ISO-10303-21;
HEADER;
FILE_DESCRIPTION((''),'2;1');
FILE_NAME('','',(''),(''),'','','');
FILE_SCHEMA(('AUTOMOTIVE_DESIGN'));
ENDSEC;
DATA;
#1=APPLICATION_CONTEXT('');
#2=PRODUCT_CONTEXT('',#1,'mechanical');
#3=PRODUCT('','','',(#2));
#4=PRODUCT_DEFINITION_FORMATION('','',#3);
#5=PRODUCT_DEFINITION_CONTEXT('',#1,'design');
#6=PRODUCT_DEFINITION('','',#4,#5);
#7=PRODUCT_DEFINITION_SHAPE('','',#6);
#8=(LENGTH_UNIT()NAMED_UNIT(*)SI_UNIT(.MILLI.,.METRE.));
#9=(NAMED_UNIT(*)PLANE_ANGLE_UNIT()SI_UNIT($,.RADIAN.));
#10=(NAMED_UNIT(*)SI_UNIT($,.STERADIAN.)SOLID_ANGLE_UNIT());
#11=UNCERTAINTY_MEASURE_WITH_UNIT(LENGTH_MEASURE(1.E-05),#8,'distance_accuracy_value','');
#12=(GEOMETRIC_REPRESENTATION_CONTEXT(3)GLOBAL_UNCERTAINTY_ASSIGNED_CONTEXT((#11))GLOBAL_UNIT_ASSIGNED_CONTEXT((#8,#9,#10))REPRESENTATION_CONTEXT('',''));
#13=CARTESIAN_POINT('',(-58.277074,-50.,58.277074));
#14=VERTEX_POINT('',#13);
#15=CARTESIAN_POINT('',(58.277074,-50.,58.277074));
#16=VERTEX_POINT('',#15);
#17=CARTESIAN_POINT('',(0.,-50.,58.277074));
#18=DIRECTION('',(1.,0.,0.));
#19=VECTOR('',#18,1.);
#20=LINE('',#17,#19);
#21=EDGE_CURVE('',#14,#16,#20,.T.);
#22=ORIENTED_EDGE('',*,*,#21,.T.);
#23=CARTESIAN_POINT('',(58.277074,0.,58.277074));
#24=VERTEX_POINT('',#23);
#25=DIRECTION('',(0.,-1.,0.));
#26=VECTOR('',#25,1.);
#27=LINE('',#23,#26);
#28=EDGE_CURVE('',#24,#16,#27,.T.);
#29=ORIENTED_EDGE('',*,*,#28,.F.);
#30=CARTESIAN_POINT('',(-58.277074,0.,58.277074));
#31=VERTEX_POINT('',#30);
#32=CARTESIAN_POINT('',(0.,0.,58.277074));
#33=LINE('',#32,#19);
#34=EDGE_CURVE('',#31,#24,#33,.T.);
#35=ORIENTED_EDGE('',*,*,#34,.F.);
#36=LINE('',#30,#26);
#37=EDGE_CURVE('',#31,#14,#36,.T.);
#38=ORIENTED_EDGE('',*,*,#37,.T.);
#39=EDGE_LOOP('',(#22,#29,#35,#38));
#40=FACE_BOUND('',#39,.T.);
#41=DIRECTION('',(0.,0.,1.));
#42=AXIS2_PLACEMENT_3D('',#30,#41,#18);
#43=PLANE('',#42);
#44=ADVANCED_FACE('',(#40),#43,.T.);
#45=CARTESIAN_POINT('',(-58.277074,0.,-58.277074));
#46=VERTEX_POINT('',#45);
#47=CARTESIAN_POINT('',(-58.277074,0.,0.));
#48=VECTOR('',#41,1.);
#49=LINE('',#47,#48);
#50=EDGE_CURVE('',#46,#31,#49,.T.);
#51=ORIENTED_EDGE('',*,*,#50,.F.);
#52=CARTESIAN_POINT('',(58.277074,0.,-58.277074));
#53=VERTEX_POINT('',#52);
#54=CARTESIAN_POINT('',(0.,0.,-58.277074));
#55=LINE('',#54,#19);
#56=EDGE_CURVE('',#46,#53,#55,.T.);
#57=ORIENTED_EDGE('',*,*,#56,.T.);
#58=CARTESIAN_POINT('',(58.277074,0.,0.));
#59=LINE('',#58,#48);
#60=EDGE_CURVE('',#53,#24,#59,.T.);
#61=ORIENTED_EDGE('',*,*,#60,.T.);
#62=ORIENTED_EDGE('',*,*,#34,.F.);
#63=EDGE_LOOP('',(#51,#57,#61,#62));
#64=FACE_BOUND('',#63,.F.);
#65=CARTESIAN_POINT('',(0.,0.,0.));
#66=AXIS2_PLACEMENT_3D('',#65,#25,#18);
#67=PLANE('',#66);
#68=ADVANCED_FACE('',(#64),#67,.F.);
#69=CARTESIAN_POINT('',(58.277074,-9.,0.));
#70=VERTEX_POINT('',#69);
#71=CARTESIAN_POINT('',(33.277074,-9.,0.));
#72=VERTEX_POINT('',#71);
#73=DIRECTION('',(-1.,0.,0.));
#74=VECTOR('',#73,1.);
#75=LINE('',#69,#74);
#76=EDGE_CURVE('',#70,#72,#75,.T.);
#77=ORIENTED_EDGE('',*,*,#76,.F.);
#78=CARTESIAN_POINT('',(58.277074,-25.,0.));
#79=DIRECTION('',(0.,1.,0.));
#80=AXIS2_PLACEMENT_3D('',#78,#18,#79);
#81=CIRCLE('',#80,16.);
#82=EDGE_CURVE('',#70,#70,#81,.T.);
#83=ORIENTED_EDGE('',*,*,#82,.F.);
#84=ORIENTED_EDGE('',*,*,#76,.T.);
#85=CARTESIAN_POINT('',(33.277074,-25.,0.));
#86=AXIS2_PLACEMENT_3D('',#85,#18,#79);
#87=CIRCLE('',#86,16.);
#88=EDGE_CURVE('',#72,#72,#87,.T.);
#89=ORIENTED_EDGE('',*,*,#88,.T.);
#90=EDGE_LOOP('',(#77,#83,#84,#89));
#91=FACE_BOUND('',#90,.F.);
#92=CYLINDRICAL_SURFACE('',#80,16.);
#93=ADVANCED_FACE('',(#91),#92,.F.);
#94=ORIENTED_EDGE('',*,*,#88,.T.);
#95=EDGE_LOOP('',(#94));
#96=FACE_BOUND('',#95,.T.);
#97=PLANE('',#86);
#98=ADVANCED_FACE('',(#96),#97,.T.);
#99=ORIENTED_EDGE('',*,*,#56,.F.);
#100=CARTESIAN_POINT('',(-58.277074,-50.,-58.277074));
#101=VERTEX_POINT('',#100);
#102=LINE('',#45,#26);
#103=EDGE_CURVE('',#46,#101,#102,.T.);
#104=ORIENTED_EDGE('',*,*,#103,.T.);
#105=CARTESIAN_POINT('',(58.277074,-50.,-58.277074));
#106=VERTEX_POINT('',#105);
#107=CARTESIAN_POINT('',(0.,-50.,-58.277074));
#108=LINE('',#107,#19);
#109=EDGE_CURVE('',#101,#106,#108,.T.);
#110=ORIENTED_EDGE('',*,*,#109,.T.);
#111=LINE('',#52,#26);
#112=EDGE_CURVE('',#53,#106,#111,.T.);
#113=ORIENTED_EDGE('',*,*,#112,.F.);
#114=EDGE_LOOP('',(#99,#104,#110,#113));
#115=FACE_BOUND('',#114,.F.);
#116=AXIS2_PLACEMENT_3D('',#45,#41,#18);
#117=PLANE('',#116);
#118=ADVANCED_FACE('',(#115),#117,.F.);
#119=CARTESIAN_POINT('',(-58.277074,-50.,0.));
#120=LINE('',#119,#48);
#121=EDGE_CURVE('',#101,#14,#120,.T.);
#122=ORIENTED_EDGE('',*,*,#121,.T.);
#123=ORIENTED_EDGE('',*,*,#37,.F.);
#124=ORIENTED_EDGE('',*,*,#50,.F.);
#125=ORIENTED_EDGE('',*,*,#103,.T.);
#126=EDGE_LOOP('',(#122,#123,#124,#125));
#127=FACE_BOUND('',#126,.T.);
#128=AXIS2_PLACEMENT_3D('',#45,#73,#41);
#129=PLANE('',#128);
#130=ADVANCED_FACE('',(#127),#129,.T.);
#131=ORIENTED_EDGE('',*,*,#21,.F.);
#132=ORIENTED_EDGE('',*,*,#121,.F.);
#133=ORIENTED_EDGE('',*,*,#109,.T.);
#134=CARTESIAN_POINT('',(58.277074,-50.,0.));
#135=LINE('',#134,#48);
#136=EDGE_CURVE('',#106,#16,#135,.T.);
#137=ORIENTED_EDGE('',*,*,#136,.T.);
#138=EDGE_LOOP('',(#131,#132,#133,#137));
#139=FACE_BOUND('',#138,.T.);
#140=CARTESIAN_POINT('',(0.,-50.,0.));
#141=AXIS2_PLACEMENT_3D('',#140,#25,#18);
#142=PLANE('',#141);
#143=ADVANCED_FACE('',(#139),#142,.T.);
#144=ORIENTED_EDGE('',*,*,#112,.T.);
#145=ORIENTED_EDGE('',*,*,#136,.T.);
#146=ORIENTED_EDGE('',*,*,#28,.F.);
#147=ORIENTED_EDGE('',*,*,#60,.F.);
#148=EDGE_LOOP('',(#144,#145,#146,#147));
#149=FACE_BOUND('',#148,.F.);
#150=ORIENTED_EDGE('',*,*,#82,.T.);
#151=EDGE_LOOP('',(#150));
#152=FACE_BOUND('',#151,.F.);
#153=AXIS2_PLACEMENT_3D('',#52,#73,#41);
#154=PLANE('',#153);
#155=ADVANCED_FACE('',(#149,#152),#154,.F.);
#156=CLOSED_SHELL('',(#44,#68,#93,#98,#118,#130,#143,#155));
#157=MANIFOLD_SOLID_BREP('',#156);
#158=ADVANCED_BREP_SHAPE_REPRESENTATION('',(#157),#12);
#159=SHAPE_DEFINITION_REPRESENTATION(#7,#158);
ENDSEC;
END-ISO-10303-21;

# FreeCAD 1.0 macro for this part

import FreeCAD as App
import Part
import Sketcher

doc = App.newDocument("Part")
params = doc.addObject("Spreadsheet::Sheet", "Params")
for row, (alias, value) in enumerate([
    ("pad1_length", "50 mm"),
    ("sketch2_diameter", "32 mm"),
    ("pocket1_length", "25 mm"),
], start=1):
    params.set(f"A{row}", alias)
    params.set(f"B{row}", "=" + value)
    params.setAlias(f"B{row}", alias)

body = doc.addObject("PartDesign::Body", "Body")

sketch1 = body.newObject("Sketcher::SketchObject", "Sketch")
sketch1.AttachmentSupport = (doc.getObject("XZ_Plane"), [""])
sketch1.MapMode = "FlatFace"
sketch1.addGeometry([
    Part.LineSegment(App.Vector(-58, 58, 0), App.Vector(-58, -58, 0)),
    Part.LineSegment(App.Vector(-58, -58, 0), App.Vector(58, -58, 0)),
    Part.LineSegment(App.Vector(58, -58, 0), App.Vector(58, 58, 0)),
    Part.LineSegment(App.Vector(58, 58, 0), App.Vector(-58, 58, 0)),
], False)
sketch1.addConstraint([
    Sketcher.Constraint("Coincident", 0, 2, 1, 1),
    Sketcher.Constraint("Coincident", 1, 2, 2, 1),
    Sketcher.Constraint("Coincident", 2, 2, 3, 1),
    Sketcher.Constraint("Coincident", 3, 2, 0, 1),
    Sketcher.Constraint("Vertical", 0),
    Sketcher.Constraint("Horizontal", 1),
    Sketcher.Constraint("Vertical", 2),
    Sketcher.Constraint("Horizontal", 3),
    Sketcher.Constraint("Symmetric", 0, 2, 2, 2, -1, 1),
    Sketcher.Constraint("Equal", 3, 0),
    Sketcher.Constraint("DistanceX", 1, 1, 1, 2, 116.554148),
])
pad1 = body.newObject("PartDesign::Pad", "Pad")
pad1.Profile = sketch1
pad1.setExpression("Length", "Params.pad1_length")

sketch2 = body.newObject("Sketcher::SketchObject", "Sketch001")
sketch2.AttachmentSupport = (doc.getObject("YZ_Plane"), [""])
sketch2.MapMode = "FlatFace"
sketch2.AttachmentOffset = App.Placement(App.Vector(0, 0, 58.277074), App.Rotation())
sketch2.addGeometry(Part.Circle(App.Vector(-25, 0, 0), App.Vector(0, 0, 1), 16), False)
sketch2.addConstraint([
    Sketcher.Constraint("PointOnObject", 0, 3, -1),
    Sketcher.Constraint("Diameter", 0, 32.0),
    Sketcher.Constraint("DistanceX", 0, 3, -1, 1, 25.0),
])
sketch2.setExpression("Constraints[1]", "Params.sketch2_diameter")
pocket1 = body.newObject("PartDesign::Pocket", "Pocket")
pocket1.Profile = sketch2
pocket1.setExpression("Length", "Params.pocket1_length")

doc.recompute()
